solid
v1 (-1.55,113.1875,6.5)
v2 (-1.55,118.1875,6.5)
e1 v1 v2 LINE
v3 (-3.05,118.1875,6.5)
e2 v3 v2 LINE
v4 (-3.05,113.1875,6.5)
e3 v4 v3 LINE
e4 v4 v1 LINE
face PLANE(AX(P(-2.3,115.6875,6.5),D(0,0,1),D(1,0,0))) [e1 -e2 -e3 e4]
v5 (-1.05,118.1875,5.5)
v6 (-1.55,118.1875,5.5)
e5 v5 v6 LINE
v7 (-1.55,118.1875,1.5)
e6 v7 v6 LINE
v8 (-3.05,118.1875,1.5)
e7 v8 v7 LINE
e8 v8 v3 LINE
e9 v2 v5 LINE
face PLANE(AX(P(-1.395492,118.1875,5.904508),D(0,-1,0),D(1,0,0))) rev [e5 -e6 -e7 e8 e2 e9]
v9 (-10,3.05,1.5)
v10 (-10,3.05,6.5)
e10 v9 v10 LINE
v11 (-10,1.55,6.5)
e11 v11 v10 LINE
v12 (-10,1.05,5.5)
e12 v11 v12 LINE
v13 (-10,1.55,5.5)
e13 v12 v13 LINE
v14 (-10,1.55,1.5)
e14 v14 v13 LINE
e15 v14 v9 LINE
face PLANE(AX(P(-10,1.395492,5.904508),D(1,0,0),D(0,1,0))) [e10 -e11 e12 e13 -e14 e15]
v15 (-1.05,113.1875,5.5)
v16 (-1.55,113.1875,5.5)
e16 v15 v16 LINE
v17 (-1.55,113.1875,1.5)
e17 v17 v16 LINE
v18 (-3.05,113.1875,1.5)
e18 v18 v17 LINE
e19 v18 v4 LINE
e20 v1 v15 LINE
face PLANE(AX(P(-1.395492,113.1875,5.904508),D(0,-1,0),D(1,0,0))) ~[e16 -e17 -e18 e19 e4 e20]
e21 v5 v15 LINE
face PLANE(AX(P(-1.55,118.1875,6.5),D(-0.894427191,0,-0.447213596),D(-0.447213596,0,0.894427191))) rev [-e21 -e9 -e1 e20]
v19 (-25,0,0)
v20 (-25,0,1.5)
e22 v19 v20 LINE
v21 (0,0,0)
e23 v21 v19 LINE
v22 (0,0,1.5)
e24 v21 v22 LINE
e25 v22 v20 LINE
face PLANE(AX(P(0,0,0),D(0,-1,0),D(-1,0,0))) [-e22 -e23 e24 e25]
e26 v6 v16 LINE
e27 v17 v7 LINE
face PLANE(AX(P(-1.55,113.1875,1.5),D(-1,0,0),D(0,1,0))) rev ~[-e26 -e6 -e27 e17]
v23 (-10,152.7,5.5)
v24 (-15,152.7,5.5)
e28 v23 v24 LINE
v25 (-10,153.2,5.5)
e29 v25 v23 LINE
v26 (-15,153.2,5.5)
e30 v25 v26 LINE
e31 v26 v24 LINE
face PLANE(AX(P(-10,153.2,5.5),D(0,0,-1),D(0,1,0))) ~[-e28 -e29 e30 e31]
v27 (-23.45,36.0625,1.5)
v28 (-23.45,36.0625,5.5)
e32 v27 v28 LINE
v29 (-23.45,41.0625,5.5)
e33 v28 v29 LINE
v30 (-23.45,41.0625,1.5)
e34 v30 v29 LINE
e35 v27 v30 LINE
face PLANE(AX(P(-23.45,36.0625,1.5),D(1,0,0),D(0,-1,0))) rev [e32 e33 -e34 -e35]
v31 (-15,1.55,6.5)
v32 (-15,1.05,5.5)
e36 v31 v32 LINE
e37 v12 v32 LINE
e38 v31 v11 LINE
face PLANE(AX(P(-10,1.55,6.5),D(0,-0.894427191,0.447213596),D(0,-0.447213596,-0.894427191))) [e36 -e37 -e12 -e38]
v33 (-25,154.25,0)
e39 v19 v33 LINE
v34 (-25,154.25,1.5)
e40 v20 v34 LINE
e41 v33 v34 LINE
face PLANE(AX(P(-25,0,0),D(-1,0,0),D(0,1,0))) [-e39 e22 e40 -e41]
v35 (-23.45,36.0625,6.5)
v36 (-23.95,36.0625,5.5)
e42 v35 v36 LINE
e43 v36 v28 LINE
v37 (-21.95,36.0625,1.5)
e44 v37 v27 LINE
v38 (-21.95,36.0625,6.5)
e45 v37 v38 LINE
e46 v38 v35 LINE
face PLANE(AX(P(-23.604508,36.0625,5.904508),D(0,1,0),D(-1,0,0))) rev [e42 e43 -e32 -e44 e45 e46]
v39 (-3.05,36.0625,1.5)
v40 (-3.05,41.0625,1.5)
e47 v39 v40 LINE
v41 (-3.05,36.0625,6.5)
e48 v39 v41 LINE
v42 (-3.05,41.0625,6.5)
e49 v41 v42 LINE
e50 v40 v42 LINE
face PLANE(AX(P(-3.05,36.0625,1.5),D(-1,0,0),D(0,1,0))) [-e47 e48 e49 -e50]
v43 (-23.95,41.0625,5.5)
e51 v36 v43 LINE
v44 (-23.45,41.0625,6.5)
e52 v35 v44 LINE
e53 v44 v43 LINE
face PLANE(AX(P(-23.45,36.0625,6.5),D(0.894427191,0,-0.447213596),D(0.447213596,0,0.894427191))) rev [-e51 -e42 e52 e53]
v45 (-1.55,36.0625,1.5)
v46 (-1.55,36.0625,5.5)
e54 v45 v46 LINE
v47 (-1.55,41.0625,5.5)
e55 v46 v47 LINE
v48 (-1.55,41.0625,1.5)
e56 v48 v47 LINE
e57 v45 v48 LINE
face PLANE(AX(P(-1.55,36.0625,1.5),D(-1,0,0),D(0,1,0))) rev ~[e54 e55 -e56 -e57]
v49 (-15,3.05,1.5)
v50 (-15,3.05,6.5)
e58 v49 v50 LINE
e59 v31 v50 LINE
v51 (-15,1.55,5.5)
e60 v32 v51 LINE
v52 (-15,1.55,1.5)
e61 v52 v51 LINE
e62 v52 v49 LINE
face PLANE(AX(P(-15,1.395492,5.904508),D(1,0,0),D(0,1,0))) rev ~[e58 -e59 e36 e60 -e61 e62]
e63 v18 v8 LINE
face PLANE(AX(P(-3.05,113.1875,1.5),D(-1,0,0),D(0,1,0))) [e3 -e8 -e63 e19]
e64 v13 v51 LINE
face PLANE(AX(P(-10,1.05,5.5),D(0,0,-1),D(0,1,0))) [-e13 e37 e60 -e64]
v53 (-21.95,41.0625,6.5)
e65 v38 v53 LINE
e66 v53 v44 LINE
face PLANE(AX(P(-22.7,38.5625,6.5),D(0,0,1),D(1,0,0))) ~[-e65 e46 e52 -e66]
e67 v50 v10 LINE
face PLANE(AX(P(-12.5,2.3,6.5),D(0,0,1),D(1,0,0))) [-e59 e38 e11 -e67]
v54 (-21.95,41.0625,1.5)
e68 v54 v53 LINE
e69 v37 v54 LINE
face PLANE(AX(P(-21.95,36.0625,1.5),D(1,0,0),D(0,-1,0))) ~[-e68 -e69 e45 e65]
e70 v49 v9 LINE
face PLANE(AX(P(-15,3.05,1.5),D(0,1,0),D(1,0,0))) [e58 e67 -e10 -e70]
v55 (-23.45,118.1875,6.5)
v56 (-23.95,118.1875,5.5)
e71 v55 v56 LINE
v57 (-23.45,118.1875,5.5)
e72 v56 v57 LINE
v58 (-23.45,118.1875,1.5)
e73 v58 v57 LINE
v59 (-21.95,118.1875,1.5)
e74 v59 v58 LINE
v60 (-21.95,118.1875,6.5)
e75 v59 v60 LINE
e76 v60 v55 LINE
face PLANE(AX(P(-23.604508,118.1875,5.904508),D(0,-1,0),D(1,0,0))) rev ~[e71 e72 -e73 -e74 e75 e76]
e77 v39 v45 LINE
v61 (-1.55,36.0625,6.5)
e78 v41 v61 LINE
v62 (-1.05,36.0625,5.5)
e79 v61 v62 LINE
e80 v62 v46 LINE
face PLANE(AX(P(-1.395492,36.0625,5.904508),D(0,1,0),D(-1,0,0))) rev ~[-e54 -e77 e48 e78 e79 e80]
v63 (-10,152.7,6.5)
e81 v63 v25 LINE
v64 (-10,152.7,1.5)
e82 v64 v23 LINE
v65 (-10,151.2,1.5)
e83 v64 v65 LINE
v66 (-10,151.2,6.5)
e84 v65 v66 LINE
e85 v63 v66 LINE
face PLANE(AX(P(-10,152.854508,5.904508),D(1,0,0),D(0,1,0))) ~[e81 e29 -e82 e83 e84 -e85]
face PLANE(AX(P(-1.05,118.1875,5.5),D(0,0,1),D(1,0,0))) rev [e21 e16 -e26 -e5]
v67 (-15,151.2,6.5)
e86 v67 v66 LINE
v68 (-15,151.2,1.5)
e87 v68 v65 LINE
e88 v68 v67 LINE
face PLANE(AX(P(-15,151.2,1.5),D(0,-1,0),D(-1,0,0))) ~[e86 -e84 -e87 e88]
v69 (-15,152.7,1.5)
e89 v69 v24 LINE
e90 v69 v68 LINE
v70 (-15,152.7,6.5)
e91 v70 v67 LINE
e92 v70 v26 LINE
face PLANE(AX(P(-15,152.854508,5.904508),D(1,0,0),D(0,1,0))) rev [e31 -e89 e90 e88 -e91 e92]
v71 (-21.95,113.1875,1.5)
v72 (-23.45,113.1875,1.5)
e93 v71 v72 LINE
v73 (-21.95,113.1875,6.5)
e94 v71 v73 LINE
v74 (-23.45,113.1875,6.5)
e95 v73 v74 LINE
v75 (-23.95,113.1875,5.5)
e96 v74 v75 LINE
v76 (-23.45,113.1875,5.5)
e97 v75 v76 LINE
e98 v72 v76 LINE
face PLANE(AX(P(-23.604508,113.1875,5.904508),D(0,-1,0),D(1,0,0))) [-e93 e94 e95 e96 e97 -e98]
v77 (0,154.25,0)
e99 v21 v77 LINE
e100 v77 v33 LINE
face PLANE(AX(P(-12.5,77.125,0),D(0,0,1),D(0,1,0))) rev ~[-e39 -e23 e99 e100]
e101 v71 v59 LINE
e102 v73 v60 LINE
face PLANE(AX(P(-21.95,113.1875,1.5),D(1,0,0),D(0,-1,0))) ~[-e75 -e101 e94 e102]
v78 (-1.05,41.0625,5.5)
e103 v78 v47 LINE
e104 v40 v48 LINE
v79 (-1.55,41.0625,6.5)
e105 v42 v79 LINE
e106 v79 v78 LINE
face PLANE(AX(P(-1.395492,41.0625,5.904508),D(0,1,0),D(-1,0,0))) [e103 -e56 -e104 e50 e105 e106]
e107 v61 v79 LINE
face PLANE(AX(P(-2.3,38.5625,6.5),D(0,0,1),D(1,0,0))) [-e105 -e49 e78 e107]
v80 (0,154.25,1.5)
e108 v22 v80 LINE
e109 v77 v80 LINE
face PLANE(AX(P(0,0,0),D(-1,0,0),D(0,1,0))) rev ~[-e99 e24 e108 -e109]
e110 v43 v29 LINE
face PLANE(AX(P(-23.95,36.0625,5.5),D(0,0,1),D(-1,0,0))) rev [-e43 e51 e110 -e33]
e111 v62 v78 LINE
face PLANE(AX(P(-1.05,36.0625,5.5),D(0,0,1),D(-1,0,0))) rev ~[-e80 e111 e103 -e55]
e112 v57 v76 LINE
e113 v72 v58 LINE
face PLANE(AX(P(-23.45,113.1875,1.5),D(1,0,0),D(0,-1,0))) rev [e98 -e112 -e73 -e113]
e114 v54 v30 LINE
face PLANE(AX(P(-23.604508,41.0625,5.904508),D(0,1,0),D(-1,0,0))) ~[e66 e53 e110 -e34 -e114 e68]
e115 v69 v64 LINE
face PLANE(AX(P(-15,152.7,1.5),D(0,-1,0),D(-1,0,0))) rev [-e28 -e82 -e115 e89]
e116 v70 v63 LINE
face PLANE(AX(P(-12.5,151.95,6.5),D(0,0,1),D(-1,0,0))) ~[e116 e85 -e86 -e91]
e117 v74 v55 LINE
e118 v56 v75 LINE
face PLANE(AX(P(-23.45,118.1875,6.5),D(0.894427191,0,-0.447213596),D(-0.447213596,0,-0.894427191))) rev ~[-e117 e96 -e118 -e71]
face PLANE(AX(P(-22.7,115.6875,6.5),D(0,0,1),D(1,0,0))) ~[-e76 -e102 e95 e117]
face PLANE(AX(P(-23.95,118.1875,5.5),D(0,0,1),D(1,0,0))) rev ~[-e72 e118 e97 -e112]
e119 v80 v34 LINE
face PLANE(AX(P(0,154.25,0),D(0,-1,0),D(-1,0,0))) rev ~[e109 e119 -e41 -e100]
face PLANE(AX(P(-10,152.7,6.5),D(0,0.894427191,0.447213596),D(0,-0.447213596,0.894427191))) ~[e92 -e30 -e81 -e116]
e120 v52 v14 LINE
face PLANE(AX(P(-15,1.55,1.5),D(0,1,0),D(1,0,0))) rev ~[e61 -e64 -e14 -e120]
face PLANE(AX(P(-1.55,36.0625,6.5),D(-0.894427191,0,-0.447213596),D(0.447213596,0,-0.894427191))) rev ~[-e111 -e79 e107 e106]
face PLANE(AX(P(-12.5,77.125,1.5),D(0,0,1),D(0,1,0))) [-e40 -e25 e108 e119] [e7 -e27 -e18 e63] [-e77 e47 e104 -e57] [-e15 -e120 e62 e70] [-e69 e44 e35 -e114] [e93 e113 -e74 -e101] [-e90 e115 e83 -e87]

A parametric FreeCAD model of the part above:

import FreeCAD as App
import Part
import Sketcher

doc = App.newDocument("Part")
params = doc.addObject("Spreadsheet::Sheet", "Params")
for row, (alias, value) in enumerate([
    ("sketch1_width", "25 mm"),
    ("sketch1_height", "154.25 mm"),
    ("pad1_length", "1.5 mm"),
    ("sketch2_width", "5 mm"),
    ("sketch2_height", "1.5 mm"),
    ("pad2_length", "5 mm"),
    ("sketch3_height", "1 mm"),
    ("sketch3_width", "0.5 mm"),
    ("pad3_length", "5 mm"),
    ("sketch4_height", "5 mm"),
    ("sketch4_width", "1.5 mm"),
    ("pad4_length", "5 mm"),
    ("sketch5_height", "1 mm"),
    ("sketch5_width", "0.5 mm"),
    ("pad5_length", "5 mm"),
    ("sketch6_height", "1 mm"),
    ("sketch6_width", "0.5 mm"),
    ("pad6_length", "5 mm"),
], start=1):
    params.set(f"A{row}", alias)
    params.set(f"B{row}", "=" + value)
    params.setAlias(f"B{row}", alias)

body = doc.addObject("PartDesign::Body", "Body")

# Sketch on XY plane
sketch1 = body.newObject("Sketcher::SketchObject", "Sketch")
sketch1.AttachmentSupport = (doc.getObject("XY_Plane"), [""])
sketch1.MapMode = "FlatFace"
sketch1.addGeometry([
    Part.LineSegment(App.Vector(-25, 0, 0), App.Vector(0, 0, 0)),
    Part.LineSegment(App.Vector(0, 0, 0), App.Vector(0, 154, 0)),
    Part.LineSegment(App.Vector(0, 154, 0), App.Vector(-25, 154, 0)),
    Part.LineSegment(App.Vector(-25, 154, 0), App.Vector(-25, 0, 0)),
], False)
sketch1.addConstraint([
    Sketcher.Constraint("Coincident", 0, 2, 1, 1),
    Sketcher.Constraint("Coincident", 1, 2, 2, 1),
    Sketcher.Constraint("Coincident", 2, 2, 3, 1),
    Sketcher.Constraint("Coincident", 3, 2, 0, 1),
    Sketcher.Constraint("Horizontal", 0),
    Sketcher.Constraint("Vertical", 1),
    Sketcher.Constraint("Horizontal", 2),
    Sketcher.Constraint("Vertical", 3),
    Sketcher.Constraint("Coincident", 0, 2, -1, 1),
    Sketcher.Constraint("DistanceX", 0, 1, 0, 2, 25.0),
    Sketcher.Constraint("DistanceY", 1, 1, 1, 2, 154.25),
])
sketch1.setExpression("Constraints[9]", "Params.sketch1_width")
sketch1.setExpression("Constraints[10]", "Params.sketch1_height")
pad1 = body.newObject("PartDesign::Pad", "Pad")
pad1.Profile = sketch1
pad1.setExpression("Length", "Params.pad1_length")

# Sketch on XY plane
sketch2 = body.newObject("Sketcher::SketchObject", "Sketch001")
sketch2.AttachmentSupport = (doc.getObject("XY_Plane"), [""])
sketch2.MapMode = "FlatFace"
sketch2.AttachmentOffset = App.Placement(App.Vector(0, 0, 1.5), App.Rotation())
sketch2.addGeometry([
    Part.LineSegment(App.Vector(-15, 3, 0), App.Vector(-15, 1.6, 0)),
    Part.LineSegment(App.Vector(-15, 1.6, 0), App.Vector(-10, 1.6, 0)),
    Part.LineSegment(App.Vector(-10, 1.6, 0), App.Vector(-10, 3, 0)),
    Part.LineSegment(App.Vector(-10, 3, 0), App.Vector(-15, 3, 0)),
], False)
sketch2.addConstraint([
    Sketcher.Constraint("Coincident", 0, 2, 1, 1),
    Sketcher.Constraint("Coincident", 1, 2, 2, 1),
    Sketcher.Constraint("Coincident", 2, 2, 3, 1),
    Sketcher.Constraint("Coincident", 3, 2, 0, 1),
    Sketcher.Constraint("Vertical", 0),
    Sketcher.Constraint("Horizontal", 1),
    Sketcher.Constraint("Vertical", 2),
    Sketcher.Constraint("Horizontal", 3),
    Sketcher.Constraint("DistanceX", 1, 1, 1, 2, 5.0),
    Sketcher.Constraint("DistanceY", 0, 2, 0, 1, 1.5),
    Sketcher.Constraint("DistanceX", 0, 2, -1, 1, 15.0),
    Sketcher.Constraint("DistanceY", -1, 1, 0, 2, 1.55),
])
sketch2.setExpression("Constraints[8]", "Params.sketch2_width")
sketch2.setExpression("Constraints[9]", "Params.sketch2_height")
pad2 = body.newObject("PartDesign::Pad", "Pad001")
pad2.Profile = sketch2
pad2.setExpression("Length", "Params.pad2_length")

# Sketch on YZ plane
sketch3 = body.newObject("Sketcher::SketchObject", "Sketch002")
sketch3.AttachmentSupport = (doc.getObject("YZ_Plane"), [""])
sketch3.MapMode = "FlatFace"
sketch3.AttachmentOffset = App.Placement(App.Vector(0, 0, -10), App.Rotation())
sketch3.addGeometry([
    Part.LineSegment(App.Vector(1.6, 6.5, 0), App.Vector(1.1, 5.5, 0)),
    Part.LineSegment(App.Vector(1.1, 5.5, 0), App.Vector(1.6, 5.5, 0)),
    Part.LineSegment(App.Vector(1.6, 5.5, 0), App.Vector(1.6, 6.5, 0)),
], False)
sketch3.addConstraint([
    Sketcher.Constraint("Coincident", 0, 2, 1, 1),
    Sketcher.Constraint("Coincident", 1, 2, 2, 1),
    Sketcher.Constraint("Coincident", 2, 2, 0, 1),
    Sketcher.Constraint("Horizontal", 1),
    Sketcher.Constraint("Vertical", 2),
    Sketcher.Constraint("DistanceY", 2, 1, 2, 2, 1.0),
    Sketcher.Constraint("DistanceX", 1, 1, 1, 2, 0.5),
    Sketcher.Constraint("DistanceY", -1, 1, 0, 2, 5.5),
    Sketcher.Constraint("DistanceX", -1, 1, 0, 2, 1.05),
])
sketch3.setExpression("Constraints[5]", "Params.sketch3_height")
sketch3.setExpression("Constraints[6]", "Params.sketch3_width")
pad3 = body.newObject("PartDesign::Pad", "Pad002")
pad3.Profile = sketch3
pad3.setExpression("Length", "Params.pad3_length")
pad3.Reversed = True

# Sketch on XY plane
sketch4 = body.newObject("Sketcher::SketchObject", "Sketch003")
sketch4.AttachmentSupport = (doc.getObject("XY_Plane"), [""])
sketch4.MapMode = "FlatFace"
sketch4.AttachmentOffset = App.Placement(App.Vector(0, 0, 1.5), App.Rotation())
sketch4.addGeometry([
    Part.LineSegment(App.Vector(-3, 41.1, 0), App.Vector(-3, 36.1, 0)),  # 0
    Part.LineSegment(App.Vector(-3, 36.1, 0), App.Vector(-1.6, 36.1, 0)),  # 1
    Part.LineSegment(App.Vector(-1.6, 36.1, 0), App.Vector(-1.6, 41.1, 0)),  # 2
    Part.LineSegment(App.Vector(-1.6, 41.1, 0), App.Vector(-3, 41.1, 0)),  # 3
    Part.LineSegment(App.Vector(-3, 118.2, 0), App.Vector(-3, 113.2, 0)),  # 4
    Part.LineSegment(App.Vector(-3, 113.2, 0), App.Vector(-1.6, 113.2, 0)),  # 5
    Part.LineSegment(App.Vector(-1.6, 113.2, 0), App.Vector(-1.6, 118.2, 0)),  # 6
    Part.LineSegment(App.Vector(-1.6, 118.2, 0), App.Vector(-3, 118.2, 0)),  # 7
], False)
sketch4.addConstraint([
    Sketcher.Constraint("Coincident", 0, 2, 1, 1),
    Sketcher.Constraint("Coincident", 1, 2, 2, 1),
    Sketcher.Constraint("Coincident", 2, 2, 3, 1),
    Sketcher.Constraint("Coincident", 3, 2, 0, 1),
    Sketcher.Constraint("Coincident", 4, 2, 5, 1),
    Sketcher.Constraint("Coincident", 5, 2, 6, 1),
    Sketcher.Constraint("Coincident", 6, 2, 7, 1),
    Sketcher.Constraint("Coincident", 7, 2, 4, 1),
    Sketcher.Constraint("Vertical", 0),
    Sketcher.Constraint("Horizontal", 1),
    Sketcher.Constraint("Vertical", 2),
    Sketcher.Constraint("Horizontal", 3),
    Sketcher.Constraint("Vertical", 4),
    Sketcher.Constraint("Horizontal", 5),
    Sketcher.Constraint("Vertical", 6),
    Sketcher.Constraint("Horizontal", 7),
    Sketcher.Constraint("Vertical", 3, 2, 4, 2),
    Sketcher.Constraint("Vertical", 2, 2, 5, 2),
    Sketcher.Constraint("Equal", 2, 4),
    Sketcher.Constraint("DistanceY", 0, 2, 0, 1, 5.0),
    Sketcher.Constraint("DistanceX", 1, 1, 1, 2, 1.5),
    Sketcher.Constraint("DistanceX", 0, 2, -1, 1, 3.05),
    Sketcher.Constraint("DistanceY", 3, 2, 4, 2, 72.125),
    Sketcher.Constraint("DistanceY", -1, 1, 0, 2, 36.0625),
])
sketch4.setExpression("Constraints[19]", "Params.sketch4_height")
sketch4.setExpression("Constraints[20]", "Params.sketch4_width")
pad4 = body.newObject("PartDesign::Pad", "Pad003")
pad4.Profile = sketch4
pad4.setExpression("Length", "Params.pad4_length")

# Sketch on XZ plane
sketch5 = body.newObject("Sketcher::SketchObject", "Sketch004")
sketch5.AttachmentSupport = (doc.getObject("XZ_Plane"), [""])
sketch5.MapMode = "FlatFace"
sketch5.AttachmentOffset = App.Placement(App.Vector(0, 0, -36.0625), App.Rotation())
sketch5.addGeometry([
    Part.LineSegment(App.Vector(-1.1, 5.5, 0), App.Vector(-1.6, 6.5, 0)),
    Part.LineSegment(App.Vector(-1.6, 6.5, 0), App.Vector(-1.6, 5.5, 0)),
    Part.LineSegment(App.Vector(-1.6, 5.5, 0), App.Vector(-1.1, 5.5, 0)),
], False)
sketch5.addConstraint([
    Sketcher.Constraint("Coincident", 0, 2, 1, 1),
    Sketcher.Constraint("Coincident", 1, 2, 2, 1),
    Sketcher.Constraint("Coincident", 2, 2, 0, 1),
    Sketcher.Constraint("Vertical", 1),
    Sketcher.Constraint("Horizontal", 2),
    Sketcher.Constraint("DistanceY", 1, 2, 1, 1, 1.0),
    Sketcher.Constraint("DistanceX", 2, 1, 2, 2, 0.5),
    Sketcher.Constraint("DistanceY", -1, 1, 0, 2, 6.5),
    Sketcher.Constraint("DistanceX", 0, 2, -1, 1, 1.55),
])
sketch5.setExpression("Constraints[5]", "Params.sketch5_height")
sketch5.setExpression("Constraints[6]", "Params.sketch5_width")
pad5 = body.newObject("PartDesign::Pad", "Pad004")
pad5.Profile = sketch5
pad5.setExpression("Length", "Params.pad5_length")
pad5.Reversed = True
doc.recompute()

datumplane = body.newObject("PartDesign::Plane", "DatumPlane")
datumplane.AttachmentSupport = (doc.getObject("XZ_Plane"), [""])
datumplane.MapMode = "FlatFace"
datumplane.AttachmentOffset = App.Placement(App.Vector(0, 0, -77.125), App.Rotation())
mirrored = body.newObject("PartDesign::Mirrored", "Mirrored")
mirrored.Originals = [pad5]
mirrored.MirrorPlane = (datumplane, [""])
body.Tip = mirrored
doc.recompute()

datumplane2 = body.newObject("PartDesign::Plane", "DatumPlane001")
datumplane2.AttachmentSupport = (doc.getObject("XZ_Plane"), [""])
datumplane2.MapMode = "FlatFace"
datumplane2.AttachmentOffset = App.Placement(App.Vector(0, 0, -77.125), App.Rotation())
mirrored2 = body.newObject("PartDesign::Mirrored", "Mirrored001")
mirrored2.Originals = [pad2]
mirrored2.MirrorPlane = (datumplane2, [""])
body.Tip = mirrored2
doc.recompute()

datumplane3 = body.newObject("PartDesign::Plane", "DatumPlane002")
datumplane3.AttachmentSupport = (doc.getObject("XZ_Plane"), [""])
datumplane3.MapMode = "FlatFace"
datumplane3.AttachmentOffset = App.Placement(App.Vector(0, 0, -77.125), App.Rotation())
mirrored3 = body.newObject("PartDesign::Mirrored", "Mirrored002")
mirrored3.Originals = [pad3]
mirrored3.MirrorPlane = (datumplane3, [""])
body.Tip = mirrored3
doc.recompute()

datumplane4 = body.newObject("PartDesign::Plane", "DatumPlane003")
datumplane4.AttachmentSupport = (doc.getObject("YZ_Plane"), [""])
datumplane4.MapMode = "FlatFace"
datumplane4.AttachmentOffset = App.Placement(App.Vector(0, 0, -12.5), App.Rotation())
mirrored4 = body.newObject("PartDesign::Mirrored", "Mirrored003")
mirrored4.Originals = [pad4, pad5]
mirrored4.MirrorPlane = (datumplane4, [""])
body.Tip = mirrored4

# Sketch on XZ plane
sketch6 = body.newObject("Sketcher::SketchObject", "Sketch005")
sketch6.AttachmentSupport = (doc.getObject("XZ_Plane"), [""])
sketch6.MapMode = "FlatFace"
sketch6.AttachmentOffset = App.Placement(App.Vector(0, 0, -118.1875), App.Rotation())
sketch6.addGeometry([
    Part.LineSegment(App.Vector(-23.9, 5.5, 0), App.Vector(-23.4, 6.5, 0)),
    Part.LineSegment(App.Vector(-23.4, 6.5, 0), App.Vector(-23.4, 5.5, 0)),
    Part.LineSegment(App.Vector(-23.4, 5.5, 0), App.Vector(-23.9, 5.5, 0)),
], False)
sketch6.addConstraint([
    Sketcher.Constraint("Coincident", 0, 2, 1, 1),
    Sketcher.Constraint("Coincident", 1, 2, 2, 1),
    Sketcher.Constraint("Coincident", 2, 2, 0, 1),
    Sketcher.Constraint("Vertical", 1),
    Sketcher.Constraint("Horizontal", 2),
    Sketcher.Constraint("DistanceY", 1, 2, 1, 1, 1.0),
    Sketcher.Constraint("DistanceX", 2, 2, 2, 1, 0.5),
    Sketcher.Constraint("DistanceY", -1, 1, 0, 2, 6.5),
    Sketcher.Constraint("DistanceX", 0, 2, -1, 1, 23.45),
])
sketch6.setExpression("Constraints[5]", "Params.sketch6_height")
sketch6.setExpression("Constraints[6]", "Params.sketch6_width")
pad6 = body.newObject("PartDesign::Pad", "Pad005")
pad6.Profile = sketch6
pad6.setExpression("Length", "Params.pad6_length")

doc.recompute()
